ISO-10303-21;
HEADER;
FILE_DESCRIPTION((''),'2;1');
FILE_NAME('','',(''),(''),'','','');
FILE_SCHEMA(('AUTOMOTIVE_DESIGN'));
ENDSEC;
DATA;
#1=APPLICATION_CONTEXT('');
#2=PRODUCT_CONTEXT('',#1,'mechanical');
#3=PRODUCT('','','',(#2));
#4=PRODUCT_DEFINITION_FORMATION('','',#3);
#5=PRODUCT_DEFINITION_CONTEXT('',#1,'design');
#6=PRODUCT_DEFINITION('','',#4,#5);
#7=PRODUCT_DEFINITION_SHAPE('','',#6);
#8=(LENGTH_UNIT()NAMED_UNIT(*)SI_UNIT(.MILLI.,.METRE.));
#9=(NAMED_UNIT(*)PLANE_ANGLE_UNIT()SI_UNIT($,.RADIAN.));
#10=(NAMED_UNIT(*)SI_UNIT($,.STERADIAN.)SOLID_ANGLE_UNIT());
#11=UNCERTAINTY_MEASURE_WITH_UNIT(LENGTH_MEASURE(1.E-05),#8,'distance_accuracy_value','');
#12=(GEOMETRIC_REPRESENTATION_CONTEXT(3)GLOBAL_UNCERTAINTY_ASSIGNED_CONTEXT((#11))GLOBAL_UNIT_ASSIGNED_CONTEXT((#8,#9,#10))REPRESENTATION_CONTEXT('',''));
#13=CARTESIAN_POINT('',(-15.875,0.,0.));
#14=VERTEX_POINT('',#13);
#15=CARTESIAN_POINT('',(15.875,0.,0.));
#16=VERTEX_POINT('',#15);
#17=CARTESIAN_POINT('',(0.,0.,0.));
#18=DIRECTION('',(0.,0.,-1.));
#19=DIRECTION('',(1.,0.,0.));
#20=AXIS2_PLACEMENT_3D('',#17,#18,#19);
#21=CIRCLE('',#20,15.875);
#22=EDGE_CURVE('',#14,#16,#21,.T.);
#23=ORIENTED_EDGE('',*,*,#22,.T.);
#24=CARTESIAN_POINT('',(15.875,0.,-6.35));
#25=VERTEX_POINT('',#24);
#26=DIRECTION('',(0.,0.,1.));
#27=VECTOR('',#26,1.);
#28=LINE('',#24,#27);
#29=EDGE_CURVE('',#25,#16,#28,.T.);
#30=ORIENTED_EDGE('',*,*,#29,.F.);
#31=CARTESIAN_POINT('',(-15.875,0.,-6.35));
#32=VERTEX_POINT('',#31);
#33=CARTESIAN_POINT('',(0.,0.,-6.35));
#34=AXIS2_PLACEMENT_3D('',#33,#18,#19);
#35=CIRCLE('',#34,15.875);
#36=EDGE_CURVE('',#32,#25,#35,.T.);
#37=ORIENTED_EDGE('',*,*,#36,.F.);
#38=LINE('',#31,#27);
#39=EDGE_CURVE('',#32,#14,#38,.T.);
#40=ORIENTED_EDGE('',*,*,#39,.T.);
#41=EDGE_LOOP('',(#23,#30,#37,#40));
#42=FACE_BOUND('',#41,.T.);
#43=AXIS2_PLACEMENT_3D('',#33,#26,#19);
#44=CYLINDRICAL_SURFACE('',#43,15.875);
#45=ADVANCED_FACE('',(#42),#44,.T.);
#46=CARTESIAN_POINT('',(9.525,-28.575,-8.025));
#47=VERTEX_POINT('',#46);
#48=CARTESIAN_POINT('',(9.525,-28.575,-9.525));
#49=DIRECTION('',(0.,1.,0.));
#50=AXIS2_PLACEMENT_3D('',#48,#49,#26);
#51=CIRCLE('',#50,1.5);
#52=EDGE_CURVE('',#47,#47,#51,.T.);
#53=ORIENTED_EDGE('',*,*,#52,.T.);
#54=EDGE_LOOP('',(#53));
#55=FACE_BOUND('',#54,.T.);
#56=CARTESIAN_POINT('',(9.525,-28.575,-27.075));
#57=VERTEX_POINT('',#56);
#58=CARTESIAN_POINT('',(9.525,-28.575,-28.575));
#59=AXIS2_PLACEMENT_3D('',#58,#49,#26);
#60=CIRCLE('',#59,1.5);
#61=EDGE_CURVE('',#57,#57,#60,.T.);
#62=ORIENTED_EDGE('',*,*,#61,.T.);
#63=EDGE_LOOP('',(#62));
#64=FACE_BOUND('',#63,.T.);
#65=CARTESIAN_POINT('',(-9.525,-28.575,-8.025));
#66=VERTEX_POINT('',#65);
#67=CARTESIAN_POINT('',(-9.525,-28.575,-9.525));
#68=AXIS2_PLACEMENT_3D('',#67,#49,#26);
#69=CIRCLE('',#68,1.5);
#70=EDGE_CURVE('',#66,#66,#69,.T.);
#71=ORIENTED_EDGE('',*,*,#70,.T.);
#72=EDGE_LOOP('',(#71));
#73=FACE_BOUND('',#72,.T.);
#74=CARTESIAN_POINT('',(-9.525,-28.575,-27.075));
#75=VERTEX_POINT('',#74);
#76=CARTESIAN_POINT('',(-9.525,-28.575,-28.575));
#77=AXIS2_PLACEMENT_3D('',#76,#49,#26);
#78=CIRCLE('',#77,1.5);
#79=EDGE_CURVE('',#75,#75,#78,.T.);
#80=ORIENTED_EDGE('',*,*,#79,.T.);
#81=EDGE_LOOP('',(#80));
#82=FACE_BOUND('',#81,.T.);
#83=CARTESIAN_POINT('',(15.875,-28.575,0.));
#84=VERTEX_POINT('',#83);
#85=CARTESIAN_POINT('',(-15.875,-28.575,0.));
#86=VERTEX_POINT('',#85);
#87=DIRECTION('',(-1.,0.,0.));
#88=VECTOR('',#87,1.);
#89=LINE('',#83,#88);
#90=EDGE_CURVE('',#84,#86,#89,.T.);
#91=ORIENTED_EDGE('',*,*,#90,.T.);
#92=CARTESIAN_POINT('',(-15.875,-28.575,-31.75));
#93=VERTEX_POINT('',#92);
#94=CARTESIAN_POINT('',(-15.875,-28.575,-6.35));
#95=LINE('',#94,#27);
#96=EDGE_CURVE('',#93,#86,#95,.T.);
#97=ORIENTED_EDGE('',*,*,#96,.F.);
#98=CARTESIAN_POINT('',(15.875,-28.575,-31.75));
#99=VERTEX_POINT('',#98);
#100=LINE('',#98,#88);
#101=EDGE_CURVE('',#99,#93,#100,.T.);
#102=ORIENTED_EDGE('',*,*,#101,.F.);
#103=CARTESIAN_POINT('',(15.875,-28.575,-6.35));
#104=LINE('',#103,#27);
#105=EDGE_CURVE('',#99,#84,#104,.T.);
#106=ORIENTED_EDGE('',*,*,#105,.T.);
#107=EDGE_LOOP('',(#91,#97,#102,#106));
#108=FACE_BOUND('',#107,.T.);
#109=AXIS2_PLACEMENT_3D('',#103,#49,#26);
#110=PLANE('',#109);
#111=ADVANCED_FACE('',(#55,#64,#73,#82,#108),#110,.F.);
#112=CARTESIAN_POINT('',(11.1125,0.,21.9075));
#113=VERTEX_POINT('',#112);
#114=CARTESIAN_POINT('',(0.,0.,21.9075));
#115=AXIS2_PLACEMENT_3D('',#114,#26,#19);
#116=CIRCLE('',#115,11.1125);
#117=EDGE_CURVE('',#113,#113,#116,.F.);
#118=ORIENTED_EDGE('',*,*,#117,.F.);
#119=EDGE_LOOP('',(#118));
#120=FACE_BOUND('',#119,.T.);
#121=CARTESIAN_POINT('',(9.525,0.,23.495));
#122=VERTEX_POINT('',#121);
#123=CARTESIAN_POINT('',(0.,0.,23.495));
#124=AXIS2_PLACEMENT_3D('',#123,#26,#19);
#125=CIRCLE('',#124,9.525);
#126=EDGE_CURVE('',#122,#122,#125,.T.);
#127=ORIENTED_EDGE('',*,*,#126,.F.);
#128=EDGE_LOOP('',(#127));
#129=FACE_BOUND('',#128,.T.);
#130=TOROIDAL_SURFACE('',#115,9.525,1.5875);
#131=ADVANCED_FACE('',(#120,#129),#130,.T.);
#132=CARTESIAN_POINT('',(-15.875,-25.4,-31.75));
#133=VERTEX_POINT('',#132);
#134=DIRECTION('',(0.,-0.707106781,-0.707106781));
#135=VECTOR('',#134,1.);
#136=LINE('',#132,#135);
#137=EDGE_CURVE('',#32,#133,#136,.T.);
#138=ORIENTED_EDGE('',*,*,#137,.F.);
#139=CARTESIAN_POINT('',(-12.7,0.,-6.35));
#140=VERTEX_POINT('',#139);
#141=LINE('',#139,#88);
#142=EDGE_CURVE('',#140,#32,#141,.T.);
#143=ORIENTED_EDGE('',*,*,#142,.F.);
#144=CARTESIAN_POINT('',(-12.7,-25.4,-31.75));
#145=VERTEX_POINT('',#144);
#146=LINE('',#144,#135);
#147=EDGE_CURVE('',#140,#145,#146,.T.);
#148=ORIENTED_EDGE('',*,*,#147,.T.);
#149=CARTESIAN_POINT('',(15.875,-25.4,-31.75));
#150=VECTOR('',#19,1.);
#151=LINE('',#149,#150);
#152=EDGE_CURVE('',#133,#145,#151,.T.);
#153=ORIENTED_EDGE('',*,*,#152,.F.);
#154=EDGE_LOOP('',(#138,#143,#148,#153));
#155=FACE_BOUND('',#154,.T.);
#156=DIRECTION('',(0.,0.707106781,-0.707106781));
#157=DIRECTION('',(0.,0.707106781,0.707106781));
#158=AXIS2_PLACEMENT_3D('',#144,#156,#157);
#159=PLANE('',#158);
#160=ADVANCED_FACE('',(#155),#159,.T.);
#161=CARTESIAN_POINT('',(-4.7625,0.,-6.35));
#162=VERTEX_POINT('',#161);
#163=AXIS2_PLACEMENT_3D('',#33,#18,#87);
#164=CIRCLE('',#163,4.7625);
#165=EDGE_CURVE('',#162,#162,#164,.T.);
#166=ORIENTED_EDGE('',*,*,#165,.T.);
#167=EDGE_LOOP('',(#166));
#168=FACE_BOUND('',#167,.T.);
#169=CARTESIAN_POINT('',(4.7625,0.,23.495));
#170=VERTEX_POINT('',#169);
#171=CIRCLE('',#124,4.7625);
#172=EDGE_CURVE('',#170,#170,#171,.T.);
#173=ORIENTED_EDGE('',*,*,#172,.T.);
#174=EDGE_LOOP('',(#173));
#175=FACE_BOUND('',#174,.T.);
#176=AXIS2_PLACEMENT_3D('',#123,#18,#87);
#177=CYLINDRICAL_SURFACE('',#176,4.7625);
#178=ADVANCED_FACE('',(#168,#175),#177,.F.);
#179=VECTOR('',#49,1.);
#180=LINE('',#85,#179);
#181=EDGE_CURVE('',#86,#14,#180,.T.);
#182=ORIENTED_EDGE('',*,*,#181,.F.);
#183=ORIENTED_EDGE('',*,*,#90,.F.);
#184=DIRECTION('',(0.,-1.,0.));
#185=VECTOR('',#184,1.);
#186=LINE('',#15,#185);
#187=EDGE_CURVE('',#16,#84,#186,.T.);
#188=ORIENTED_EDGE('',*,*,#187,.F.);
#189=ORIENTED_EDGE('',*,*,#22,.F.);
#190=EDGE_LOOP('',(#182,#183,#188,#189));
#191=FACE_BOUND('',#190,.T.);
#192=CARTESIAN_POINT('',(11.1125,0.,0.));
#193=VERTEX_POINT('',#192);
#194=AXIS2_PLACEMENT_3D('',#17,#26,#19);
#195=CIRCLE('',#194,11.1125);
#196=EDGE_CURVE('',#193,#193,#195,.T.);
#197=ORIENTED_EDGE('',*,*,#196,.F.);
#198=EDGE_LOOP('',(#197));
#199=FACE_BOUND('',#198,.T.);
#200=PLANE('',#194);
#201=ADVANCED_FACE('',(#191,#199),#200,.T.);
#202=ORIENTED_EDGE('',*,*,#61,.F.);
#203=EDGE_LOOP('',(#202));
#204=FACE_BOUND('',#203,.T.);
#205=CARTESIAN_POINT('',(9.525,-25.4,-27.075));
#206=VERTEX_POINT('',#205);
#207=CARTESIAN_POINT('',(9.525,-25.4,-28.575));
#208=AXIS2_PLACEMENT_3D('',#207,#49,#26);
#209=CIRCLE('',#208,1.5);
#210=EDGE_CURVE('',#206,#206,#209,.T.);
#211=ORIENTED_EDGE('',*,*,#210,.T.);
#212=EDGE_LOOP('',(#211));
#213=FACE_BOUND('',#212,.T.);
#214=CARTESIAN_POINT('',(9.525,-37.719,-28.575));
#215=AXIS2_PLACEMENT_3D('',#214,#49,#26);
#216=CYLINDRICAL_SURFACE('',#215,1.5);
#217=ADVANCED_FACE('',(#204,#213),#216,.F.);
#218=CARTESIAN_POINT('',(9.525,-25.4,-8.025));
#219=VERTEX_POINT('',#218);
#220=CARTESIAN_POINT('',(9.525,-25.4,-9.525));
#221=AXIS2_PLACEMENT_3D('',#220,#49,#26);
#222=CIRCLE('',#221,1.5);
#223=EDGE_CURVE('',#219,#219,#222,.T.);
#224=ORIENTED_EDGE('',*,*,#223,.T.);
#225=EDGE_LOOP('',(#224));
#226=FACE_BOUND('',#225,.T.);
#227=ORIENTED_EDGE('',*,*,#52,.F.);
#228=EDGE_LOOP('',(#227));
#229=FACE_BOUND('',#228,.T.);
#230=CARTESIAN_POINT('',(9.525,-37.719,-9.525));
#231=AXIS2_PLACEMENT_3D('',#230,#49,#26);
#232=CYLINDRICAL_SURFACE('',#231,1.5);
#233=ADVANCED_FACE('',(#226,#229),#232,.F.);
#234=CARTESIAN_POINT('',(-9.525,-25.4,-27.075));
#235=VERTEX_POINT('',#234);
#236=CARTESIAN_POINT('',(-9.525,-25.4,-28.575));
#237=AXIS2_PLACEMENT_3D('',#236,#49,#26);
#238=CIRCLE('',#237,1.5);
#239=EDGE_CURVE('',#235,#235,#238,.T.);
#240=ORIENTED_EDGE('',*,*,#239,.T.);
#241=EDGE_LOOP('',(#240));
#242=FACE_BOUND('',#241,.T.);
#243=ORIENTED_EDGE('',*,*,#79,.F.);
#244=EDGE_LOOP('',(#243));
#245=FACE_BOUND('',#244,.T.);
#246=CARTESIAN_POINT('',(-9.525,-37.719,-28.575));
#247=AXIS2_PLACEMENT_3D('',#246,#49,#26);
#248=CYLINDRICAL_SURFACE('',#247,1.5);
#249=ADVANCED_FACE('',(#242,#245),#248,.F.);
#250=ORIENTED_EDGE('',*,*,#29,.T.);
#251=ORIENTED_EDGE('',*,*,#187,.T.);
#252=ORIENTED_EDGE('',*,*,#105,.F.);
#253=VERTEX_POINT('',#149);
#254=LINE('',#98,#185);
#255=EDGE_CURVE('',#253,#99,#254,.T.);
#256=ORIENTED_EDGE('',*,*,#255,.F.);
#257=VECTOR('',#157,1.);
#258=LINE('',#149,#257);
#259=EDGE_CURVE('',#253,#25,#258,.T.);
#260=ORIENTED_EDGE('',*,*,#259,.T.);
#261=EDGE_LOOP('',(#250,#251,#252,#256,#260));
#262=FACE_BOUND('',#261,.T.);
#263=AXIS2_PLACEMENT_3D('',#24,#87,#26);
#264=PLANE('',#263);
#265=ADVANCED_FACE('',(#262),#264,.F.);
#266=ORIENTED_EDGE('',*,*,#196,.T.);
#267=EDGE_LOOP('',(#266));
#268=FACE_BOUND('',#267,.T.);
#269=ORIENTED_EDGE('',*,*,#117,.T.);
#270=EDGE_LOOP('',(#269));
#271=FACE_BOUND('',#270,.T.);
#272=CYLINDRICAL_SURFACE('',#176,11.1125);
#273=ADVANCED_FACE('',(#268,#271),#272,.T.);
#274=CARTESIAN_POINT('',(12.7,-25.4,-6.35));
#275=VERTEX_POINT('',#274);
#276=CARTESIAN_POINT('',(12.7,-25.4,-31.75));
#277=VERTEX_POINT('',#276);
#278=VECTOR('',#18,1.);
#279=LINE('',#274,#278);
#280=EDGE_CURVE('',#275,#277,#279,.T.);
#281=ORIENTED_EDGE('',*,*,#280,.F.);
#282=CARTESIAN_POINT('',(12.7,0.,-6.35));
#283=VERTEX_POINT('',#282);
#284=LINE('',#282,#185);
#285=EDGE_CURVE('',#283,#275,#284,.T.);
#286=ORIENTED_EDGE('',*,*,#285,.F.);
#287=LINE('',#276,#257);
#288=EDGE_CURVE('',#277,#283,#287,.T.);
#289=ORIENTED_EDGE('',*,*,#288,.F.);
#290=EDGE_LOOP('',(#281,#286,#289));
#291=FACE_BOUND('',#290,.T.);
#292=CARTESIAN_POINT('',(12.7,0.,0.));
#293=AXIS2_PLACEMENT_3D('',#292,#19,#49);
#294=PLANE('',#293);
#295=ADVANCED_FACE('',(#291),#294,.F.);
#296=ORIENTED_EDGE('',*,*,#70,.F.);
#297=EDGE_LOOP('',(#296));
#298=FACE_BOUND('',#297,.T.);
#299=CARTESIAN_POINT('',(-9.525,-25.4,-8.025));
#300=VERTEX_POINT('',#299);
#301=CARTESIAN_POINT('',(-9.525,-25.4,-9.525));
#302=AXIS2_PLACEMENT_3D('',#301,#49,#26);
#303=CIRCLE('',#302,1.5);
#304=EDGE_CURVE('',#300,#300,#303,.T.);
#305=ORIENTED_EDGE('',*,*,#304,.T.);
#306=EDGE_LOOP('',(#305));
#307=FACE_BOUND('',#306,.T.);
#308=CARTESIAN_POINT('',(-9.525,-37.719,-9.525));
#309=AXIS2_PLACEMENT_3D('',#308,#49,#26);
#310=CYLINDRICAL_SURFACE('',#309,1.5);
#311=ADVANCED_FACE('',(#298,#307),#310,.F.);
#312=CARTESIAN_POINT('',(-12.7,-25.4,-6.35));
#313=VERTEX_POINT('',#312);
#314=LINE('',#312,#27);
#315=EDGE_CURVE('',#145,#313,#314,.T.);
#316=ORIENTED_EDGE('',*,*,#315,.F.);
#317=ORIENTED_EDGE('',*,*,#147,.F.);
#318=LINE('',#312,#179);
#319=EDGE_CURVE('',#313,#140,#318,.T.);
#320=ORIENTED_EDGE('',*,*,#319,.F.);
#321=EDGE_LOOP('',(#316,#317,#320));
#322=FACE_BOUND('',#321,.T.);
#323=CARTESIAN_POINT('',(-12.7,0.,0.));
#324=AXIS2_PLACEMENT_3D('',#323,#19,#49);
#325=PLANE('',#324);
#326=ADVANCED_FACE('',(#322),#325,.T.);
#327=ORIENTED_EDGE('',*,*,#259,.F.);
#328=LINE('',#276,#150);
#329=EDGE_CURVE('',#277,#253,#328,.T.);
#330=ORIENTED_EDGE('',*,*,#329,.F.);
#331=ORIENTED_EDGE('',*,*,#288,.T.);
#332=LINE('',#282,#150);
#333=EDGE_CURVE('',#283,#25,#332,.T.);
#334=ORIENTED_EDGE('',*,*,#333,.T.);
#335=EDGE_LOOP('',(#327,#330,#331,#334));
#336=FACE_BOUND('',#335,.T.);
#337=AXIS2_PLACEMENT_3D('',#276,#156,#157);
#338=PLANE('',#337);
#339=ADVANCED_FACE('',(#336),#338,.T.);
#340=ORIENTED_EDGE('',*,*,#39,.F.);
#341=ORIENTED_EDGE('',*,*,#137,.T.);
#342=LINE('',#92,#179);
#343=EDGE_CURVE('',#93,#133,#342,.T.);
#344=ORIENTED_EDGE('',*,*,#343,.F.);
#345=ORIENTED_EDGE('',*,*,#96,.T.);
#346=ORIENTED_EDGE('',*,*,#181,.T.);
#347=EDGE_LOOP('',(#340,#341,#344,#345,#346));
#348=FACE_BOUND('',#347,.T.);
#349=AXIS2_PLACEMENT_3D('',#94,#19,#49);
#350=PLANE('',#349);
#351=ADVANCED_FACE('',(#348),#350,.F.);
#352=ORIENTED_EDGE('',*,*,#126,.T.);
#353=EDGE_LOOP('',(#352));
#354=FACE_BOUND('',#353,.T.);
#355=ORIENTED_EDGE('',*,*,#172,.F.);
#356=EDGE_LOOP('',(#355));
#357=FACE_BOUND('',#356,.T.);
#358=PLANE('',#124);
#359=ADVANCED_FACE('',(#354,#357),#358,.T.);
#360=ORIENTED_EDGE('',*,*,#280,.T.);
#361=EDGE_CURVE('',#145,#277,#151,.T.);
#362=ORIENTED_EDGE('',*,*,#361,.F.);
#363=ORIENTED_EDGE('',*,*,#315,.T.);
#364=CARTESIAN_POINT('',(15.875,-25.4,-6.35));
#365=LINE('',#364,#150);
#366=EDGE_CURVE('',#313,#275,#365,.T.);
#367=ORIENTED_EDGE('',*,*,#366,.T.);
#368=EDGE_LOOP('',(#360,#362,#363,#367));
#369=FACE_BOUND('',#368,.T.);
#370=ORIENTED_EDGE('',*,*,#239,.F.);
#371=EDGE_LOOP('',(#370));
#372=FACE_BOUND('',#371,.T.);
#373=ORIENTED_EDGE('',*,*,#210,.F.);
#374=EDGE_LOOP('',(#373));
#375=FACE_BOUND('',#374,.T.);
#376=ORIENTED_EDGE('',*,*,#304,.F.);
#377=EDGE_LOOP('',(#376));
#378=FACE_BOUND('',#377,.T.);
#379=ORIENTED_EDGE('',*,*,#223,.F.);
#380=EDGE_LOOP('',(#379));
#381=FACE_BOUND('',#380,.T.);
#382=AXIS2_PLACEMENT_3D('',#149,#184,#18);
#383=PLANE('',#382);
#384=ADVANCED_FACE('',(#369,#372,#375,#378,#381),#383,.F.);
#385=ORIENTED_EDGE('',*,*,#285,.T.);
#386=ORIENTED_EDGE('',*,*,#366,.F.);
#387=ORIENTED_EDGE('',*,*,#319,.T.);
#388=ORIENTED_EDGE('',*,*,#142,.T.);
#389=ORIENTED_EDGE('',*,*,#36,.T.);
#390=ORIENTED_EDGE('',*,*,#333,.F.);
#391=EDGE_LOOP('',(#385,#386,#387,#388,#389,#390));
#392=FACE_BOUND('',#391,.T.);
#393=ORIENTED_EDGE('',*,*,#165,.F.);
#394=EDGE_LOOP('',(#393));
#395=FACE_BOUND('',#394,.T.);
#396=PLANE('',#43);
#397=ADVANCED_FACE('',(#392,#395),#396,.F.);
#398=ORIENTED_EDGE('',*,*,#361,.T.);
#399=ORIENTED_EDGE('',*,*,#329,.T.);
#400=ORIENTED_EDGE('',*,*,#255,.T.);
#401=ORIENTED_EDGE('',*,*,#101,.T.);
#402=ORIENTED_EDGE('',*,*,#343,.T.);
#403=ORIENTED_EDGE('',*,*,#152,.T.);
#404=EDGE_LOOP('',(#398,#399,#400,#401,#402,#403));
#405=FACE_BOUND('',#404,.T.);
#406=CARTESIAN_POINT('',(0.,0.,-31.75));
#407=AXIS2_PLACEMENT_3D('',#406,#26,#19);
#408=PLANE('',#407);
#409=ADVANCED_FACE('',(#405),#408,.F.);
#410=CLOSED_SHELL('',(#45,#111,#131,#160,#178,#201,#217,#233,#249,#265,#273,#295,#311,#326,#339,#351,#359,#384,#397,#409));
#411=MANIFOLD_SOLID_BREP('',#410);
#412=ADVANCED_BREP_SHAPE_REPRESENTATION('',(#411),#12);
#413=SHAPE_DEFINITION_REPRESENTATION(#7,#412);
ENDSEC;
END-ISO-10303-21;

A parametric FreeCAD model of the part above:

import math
import FreeCAD as App
import Part
import Sketcher

V = App.Vector
Q = App.Units.Quantity


def edges_at(feature, points):
    """Names of the edges that pass closest to the given points."""
    edges = feature.Shape.Edges
    near = lambda p: min(range(len(edges)), key=lambda i: edges[i].distToShape(Part.Vertex(*p))[0])
    return sorted({f"Edge{near(p) + 1}" for p in points})


def add_polygon(sketch, points):
    """Adds a closed chain of lines whose ends are joined by coincident constraints."""
    first, n = sketch.GeometryCount, len(points)
    for a, b in zip(points, points[1:] + points[:1]):
        sketch.addGeometry(Part.LineSegment(App.Vector(*a, 0), App.Vector(*b, 0)), False)
    for i in range(n):
        sketch.addConstraint(Sketcher.Constraint("Coincident", first + i, 2, first + (i + 1) % n, 1))

doc = App.newDocument("Part")
body = doc.addObject("PartDesign::Body", "Body")

# Sketch on XY plane
sketch1 = body.newObject("Sketcher::SketchObject", "Sketch")
sketch1.AttachmentSupport = (doc.getObject("XY_Plane"), [""])
sketch1.MapMode = "FlatFace"
sketch1.addGeometry([
    Part.Circle(V(0, 0, 0), V(0, 0, 1), 11.1),
    Part.Circle(V(0, 0, 0), V(0, 0, 1), 4.8),
], False)
sketch1.addConstraint([
    Sketcher.Constraint("Coincident", 0, 3, -1, 1),
    Sketcher.Constraint("Coincident", 1, 3, -1, 1),
    Sketcher.Constraint("Diameter", 0, Q("0.875 in")),
    Sketcher.Constraint("Diameter", 1, Q("0.375 in")),
])
pad1 = body.newObject("PartDesign::Pad", "Pad")
pad1.Profile = sketch1
pad1.Length = Q("0.925 in")

# Sketch on XY plane
sketch2 = body.newObject("Sketcher::SketchObject", "Sketch001")
sketch2.AttachmentSupport = (doc.getObject("XY_Plane"), [""])
sketch2.MapMode = "FlatFace"
sketch2.addGeometry([
    Part.LineSegment(V(-15.9, -28.6, 0), V(-15.9, 0, 0)),  # 0
    Part.ArcOfCircle(Part.Circle(V(0, 0, 0), V(0, 0, 1), 15.9), math.radians(0), math.radians(180)),  # 1
    Part.LineSegment(V(15.9, 0, 0), V(15.9, -28.6, 0)),  # 2
    Part.LineSegment(V(15.9, -28.6, 0), V(-15.9, -28.6, 0)),  # 3
    Part.Circle(V(0, 0, 0), V(0, 0, 1), 4.8),  # 4
], False)
sketch2.addConstraint([
    Sketcher.Constraint("Tangent", 0, 2, 1, 2),
    Sketcher.Constraint("Tangent", 1, 1, 2, 1),
    Sketcher.Constraint("Coincident", 2, 2, 3, 1),
    Sketcher.Constraint("Coincident", 3, 2, 0, 1),
    Sketcher.Constraint("Vertical", 0),
    Sketcher.Constraint("Vertical", 2),
    Sketcher.Constraint("Horizontal", 3),
    Sketcher.Constraint("Coincident", 1, 3, -1, 1),
    Sketcher.Constraint("Coincident", 4, 3, -1, 1),
    Sketcher.Constraint("Diameter", 4, Q("0.375 in")),
    Sketcher.Constraint("Radius", 1, Q("0.625 in")),
    Sketcher.Constraint("DistanceY", 0, 1, 0, 2, Q("1.125 in")),
])
pad2 = body.newObject("PartDesign::Pad", "Pad001")
pad2.Profile = sketch2
pad2.Length = Q("0.25 in")
pad2.Reversed = True

# Sketch on XY plane
sketch3 = body.newObject("Sketcher::SketchObject", "Sketch002")
sketch3.AttachmentSupport = (doc.getObject("XY_Plane"), [""])
sketch3.MapMode = "FlatFace"
sketch3.AttachmentOffset = App.Placement(V(0, 0, -0.25 * 25.4), App.Rotation())
add_polygon(sketch3, [(15.9, -25.4), (15.9, -28.6), (-15.9, -28.6), (-15.9, -25.4)])  # lines 0-3
sketch3.addConstraint([
    Sketcher.Constraint("Vertical", 0),
    Sketcher.Constraint("Horizontal", 1),
    Sketcher.Constraint("Vertical", 2),
    Sketcher.Constraint("Horizontal", 3),
    Sketcher.Constraint("DistanceY", 2, 2, -1, 1, Q("1 in")),
    Sketcher.Constraint("DistanceX", 1, 2, 1, 1, Q("1.25 in")),
    Sketcher.Constraint("DistanceY", 0, 2, 0, 1, Q("0.125 in")),
    Sketcher.Constraint("DistanceX", -1, 1, 0, 2, Q("0.625 in")),
])
pad3 = body.newObject("PartDesign::Pad", "Pad002")
pad3.Profile = sketch3
pad3.Length = Q("1 in")
pad3.Reversed = True

# Sketch on YZ plane
sketch4 = body.newObject("Sketcher::SketchObject", "Sketch003")
sketch4.AttachmentSupport = (doc.getObject("YZ_Plane"), [""])
sketch4.MapMode = "FlatFace"
sketch4.AttachmentOffset = App.Placement(V(0, 0, -0.625 * 25.4), App.Rotation())
add_polygon(sketch4, [(0, -6), (-25, -32), (-25, -6)])  # lines 0-2
sketch4.addConstraint([
    Sketcher.Constraint("Vertical", 1),
    Sketcher.Constraint("Horizontal", 2),
    Sketcher.Constraint("PointOnObject", 2, 2, -2),
    Sketcher.Constraint("Equal", 2, 1),
    Sketcher.Constraint("DistanceX", 2, 1, 2, 2, Q("1 in")),
    Sketcher.Constraint("DistanceY", 0, 2, -1, 1, Q("1.25 in")),
])
pad4 = body.newObject("PartDesign::Pad", "Pad003")
pad4.Profile = sketch4
pad4.Length = Q("0.125 in")

# Sketch on YZ plane
sketch5 = body.newObject("Sketcher::SketchObject", "Sketch004")
sketch5.AttachmentSupport = (doc.getObject("YZ_Plane"), [""])
sketch5.MapMode = "FlatFace"
sketch5.AttachmentOffset = App.Placement(V(0, 0, 0.625 * 25.4), App.Rotation())
add_polygon(sketch5, [(-25, -6), (-25, -32), (0, -6)])  # lines 0-2
sketch5.addConstraint([
    Sketcher.Constraint("Vertical", 0),
    Sketcher.Constraint("Horizontal", 2),
    Sketcher.Constraint("PointOnObject", 1, 2, -2),
    Sketcher.Constraint("Equal", 2, 0),
    Sketcher.Constraint("DistanceX", 2, 2, 2, 1, Q("1 in")),
    Sketcher.Constraint("DistanceY", 0, 2, -1, 1, Q("1.25 in")),
])
pad5 = body.newObject("PartDesign::Pad", "Pad004")
pad5.Profile = sketch5
pad5.Length = Q("0.125 in")
pad5.Reversed = True

# Sketch on XZ plane
sketch6 = body.newObject("Sketcher::SketchObject", "Sketch005")
sketch6.AttachmentSupport = (doc.getObject("XZ_Plane"), [""])
sketch6.MapMode = "FlatFace"
sketch6.AttachmentOffset = App.Placement(V(0, 0, 1 * 25.4), App.Rotation())
sketch6.addGeometry([
    Part.Circle(V(-9.5, -28.6, 0), V(0, 0, 1), 1.5),
    Part.Circle(V(9.5, -28.6, 0), V(0, 0, 1), 1.5),
    Part.Circle(V(9.5, -9.5, 0), V(0, 0, 1), 1.5),
    Part.Circle(V(-9.5, -9.5, 0), V(0, 0, 1), 1.5),
], False)
sketch6.addConstraint([
    Sketcher.Constraint("Equal", 0, 1),
    Sketcher.Constraint("Equal", 1, 2),
    Sketcher.Constraint("Equal", 2, 3),
    Sketcher.Constraint("Symmetric", 0, 3, 1, 3, -2),
    Sketcher.Constraint("Symmetric", 2, 3, 3, 3, -2),
    Sketcher.Constraint("Vertical", 1, 3, 2, 3),
    Sketcher.Constraint("Diameter", 0, 3.0),
    Sketcher.Constraint("DistanceX", 0, 3, 1, 3, Q("0.75 in")),
    Sketcher.Constraint("DistanceY", 1, 3, 2, 3, Q("0.75 in")),
    Sketcher.Constraint("DistanceY", 0, 3, -1, 1, Q("1.125 in")),
])
pocket1 = body.newObject("PartDesign::Pocket", "Pocket")
pocket1.Profile = sketch6
pocket1.Length = Q("0.485 in")
pocket1.Reversed = True
doc.recompute()

fillet = body.newObject("PartDesign::Fillet", "Fillet")
fillet.Base = (pocket1, edges_at(pocket1, [(-11.113, 0, 23.495)]))
fillet.Radius = Q("0.0625 in")

doc.recompute()
